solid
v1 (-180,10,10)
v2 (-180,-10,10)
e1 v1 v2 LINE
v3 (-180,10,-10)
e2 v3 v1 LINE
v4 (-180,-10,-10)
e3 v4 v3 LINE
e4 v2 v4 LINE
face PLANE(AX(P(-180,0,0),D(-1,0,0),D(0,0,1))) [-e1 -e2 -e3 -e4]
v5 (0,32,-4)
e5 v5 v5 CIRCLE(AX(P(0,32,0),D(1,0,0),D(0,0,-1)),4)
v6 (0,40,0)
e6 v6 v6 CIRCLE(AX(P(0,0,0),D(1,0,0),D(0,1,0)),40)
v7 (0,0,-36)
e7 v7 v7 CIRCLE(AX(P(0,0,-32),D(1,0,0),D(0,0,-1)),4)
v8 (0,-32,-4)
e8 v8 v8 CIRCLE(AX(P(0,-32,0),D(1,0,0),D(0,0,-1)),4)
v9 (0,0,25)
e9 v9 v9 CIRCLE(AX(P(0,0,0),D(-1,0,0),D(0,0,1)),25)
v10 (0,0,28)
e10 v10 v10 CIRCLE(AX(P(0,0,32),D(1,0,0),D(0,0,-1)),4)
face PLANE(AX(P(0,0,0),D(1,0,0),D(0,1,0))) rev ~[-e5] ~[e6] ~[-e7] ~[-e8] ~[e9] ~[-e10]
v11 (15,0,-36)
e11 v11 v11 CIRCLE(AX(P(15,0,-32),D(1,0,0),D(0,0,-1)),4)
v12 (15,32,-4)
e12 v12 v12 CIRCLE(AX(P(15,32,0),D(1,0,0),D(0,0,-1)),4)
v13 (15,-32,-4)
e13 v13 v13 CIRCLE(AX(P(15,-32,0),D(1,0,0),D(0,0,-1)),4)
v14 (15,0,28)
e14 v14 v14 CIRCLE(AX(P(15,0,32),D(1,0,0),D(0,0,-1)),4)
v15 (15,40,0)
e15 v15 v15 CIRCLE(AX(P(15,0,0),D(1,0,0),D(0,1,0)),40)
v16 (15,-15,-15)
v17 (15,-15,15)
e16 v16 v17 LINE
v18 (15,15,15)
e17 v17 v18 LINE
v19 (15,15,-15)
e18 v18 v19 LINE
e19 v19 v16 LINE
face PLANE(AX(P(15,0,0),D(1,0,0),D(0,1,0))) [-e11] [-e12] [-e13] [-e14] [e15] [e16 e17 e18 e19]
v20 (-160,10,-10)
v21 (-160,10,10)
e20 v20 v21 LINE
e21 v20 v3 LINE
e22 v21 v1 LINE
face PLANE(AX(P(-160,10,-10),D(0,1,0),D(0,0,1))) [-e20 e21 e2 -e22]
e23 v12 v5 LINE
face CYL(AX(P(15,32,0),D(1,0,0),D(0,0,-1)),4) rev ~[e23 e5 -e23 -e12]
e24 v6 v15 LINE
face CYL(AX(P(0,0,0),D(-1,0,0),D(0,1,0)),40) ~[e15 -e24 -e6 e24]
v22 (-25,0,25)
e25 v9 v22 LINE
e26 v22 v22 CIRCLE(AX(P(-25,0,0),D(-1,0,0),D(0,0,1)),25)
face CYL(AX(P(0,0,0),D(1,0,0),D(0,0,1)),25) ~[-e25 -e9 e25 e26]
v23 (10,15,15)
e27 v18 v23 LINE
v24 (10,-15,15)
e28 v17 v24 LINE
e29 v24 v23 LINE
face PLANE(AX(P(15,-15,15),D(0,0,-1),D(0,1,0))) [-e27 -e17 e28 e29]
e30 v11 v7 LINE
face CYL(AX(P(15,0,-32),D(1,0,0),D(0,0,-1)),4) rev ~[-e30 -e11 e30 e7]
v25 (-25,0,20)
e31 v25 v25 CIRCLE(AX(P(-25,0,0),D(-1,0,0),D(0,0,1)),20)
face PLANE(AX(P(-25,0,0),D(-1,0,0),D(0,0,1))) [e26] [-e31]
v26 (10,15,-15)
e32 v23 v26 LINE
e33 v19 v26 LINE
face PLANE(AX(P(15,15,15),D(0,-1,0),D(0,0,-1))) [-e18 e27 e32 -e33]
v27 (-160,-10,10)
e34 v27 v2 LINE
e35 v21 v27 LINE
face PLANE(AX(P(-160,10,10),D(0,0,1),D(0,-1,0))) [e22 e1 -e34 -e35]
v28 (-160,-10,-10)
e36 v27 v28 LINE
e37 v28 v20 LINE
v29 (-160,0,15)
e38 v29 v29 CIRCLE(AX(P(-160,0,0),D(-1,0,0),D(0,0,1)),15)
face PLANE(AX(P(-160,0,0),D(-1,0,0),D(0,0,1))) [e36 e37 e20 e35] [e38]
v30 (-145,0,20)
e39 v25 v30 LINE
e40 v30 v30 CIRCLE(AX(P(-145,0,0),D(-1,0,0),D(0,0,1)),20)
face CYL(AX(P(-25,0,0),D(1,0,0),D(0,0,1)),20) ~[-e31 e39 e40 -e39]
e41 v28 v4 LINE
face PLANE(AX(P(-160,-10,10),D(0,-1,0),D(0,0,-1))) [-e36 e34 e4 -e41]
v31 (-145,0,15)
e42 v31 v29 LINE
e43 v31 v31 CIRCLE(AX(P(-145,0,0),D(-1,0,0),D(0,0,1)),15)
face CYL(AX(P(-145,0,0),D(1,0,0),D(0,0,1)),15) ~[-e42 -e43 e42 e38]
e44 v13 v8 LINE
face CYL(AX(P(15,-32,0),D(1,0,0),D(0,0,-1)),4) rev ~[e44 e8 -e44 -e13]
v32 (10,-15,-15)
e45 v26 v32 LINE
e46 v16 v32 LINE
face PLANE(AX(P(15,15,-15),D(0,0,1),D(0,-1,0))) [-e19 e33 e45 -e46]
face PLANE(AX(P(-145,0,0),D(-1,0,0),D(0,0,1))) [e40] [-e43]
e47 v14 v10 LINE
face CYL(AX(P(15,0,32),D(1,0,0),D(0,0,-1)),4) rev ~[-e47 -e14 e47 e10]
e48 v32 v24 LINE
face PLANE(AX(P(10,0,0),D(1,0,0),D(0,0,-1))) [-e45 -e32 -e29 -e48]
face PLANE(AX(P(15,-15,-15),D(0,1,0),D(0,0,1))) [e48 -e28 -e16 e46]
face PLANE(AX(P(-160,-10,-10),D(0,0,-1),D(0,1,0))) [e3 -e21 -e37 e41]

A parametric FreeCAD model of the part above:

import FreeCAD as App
import Part
import Sketcher
Q = App.Units.Quantity


def add_polygon(sketch, points):
    """Adds a closed chain of lines whose ends are joined by coincident constraints."""
    first, n = sketch.GeometryCount, len(points)
    for a, b in zip(points, points[1:] + points[:1]):
        sketch.addGeometry(Part.LineSegment(App.Vector(*a, 0), App.Vector(*b, 0)), False)
    for i in range(n):
        sketch.addConstraint(Sketcher.Constraint("Coincident", first + i, 2, first + (i + 1) % n, 1))

doc = App.newDocument("Part")
body = doc.addObject("PartDesign::Body", "Body")

sketch1 = body.newObject("Sketcher::SketchObject", "Sketch")
sketch1.AttachmentSupport = (doc.getObject("YZ_Plane"), [""])
sketch1.MapMode = "FlatFace"
sketch1.addGeometry(Part.Circle(App.Vector(0, 0, 0), App.Vector(0, 0, 1), 40), False)
sketch1.addConstraint(Sketcher.Constraint("Coincident", 0, 3, -1, 1))
sketch1.addConstraint(Sketcher.Constraint("Diameter", 0, Q("80 mm")))
pad1 = body.newObject("PartDesign::Pad", "Pad")
pad1.Profile = sketch1
pad1.Length = 15

sketch2 = body.newObject("Sketcher::SketchObject", "Sketch001")
sketch2.AttachmentSupport = (doc.getObject("YZ_Plane"), [""])
sketch2.MapMode = "FlatFace"
sketch2.addGeometry(Part.Circle(App.Vector(0, 0, 0), App.Vector(0, 0, 1), 25), False)
sketch2.addConstraint(Sketcher.Constraint("Coincident", 0, 3, -1, 1))
sketch2.addConstraint(Sketcher.Constraint("Diameter", 0, Q("50 mm")))
pad2 = body.newObject("PartDesign::Pad", "Pad001")
pad2.Profile = sketch2
pad2.Length = 25
pad2.Reversed = True

sketch3 = body.newObject("Sketcher::SketchObject", "Sketch002")
sketch3.AttachmentSupport = (doc.getObject("YZ_Plane"), [""])
sketch3.MapMode = "FlatFace"
sketch3.AttachmentOffset = App.Placement(App.Vector(0, 0, -25), App.Rotation())
sketch3.addGeometry(Part.Circle(App.Vector(0, 0, 0), App.Vector(0, 0, 1), 20), False)
sketch3.addConstraint(Sketcher.Constraint("Coincident", 0, 3, -1, 1))
sketch3.addConstraint(Sketcher.Constraint("Diameter", 0, Q("40 mm")))
pad3 = body.newObject("PartDesign::Pad", "Pad002")
pad3.Profile = sketch3
pad3.Length = 120
pad3.Reversed = True

sketch4 = body.newObject("Sketcher::SketchObject", "Sketch003")
sketch4.AttachmentSupport = (doc.getObject("YZ_Plane"), [""])
sketch4.MapMode = "FlatFace"
sketch4.AttachmentOffset = App.Placement(App.Vector(0, 0, -145), App.Rotation())
sketch4.addGeometry(Part.Circle(App.Vector(0, 0, 0), App.Vector(0, 0, 1), 15), False)
sketch4.addConstraint(Sketcher.Constraint("Coincident", 0, 3, -1, 1))
sketch4.addConstraint(Sketcher.Constraint("Diameter", 0, Q("30 mm")))
pad4 = body.newObject("PartDesign::Pad", "Pad003")
pad4.Profile = sketch4
pad4.Length = 15
pad4.Reversed = True

sketch5 = body.newObject("Sketcher::SketchObject", "Sketch004")
sketch5.AttachmentSupport = (doc.getObject("YZ_Plane"), [""])
sketch5.MapMode = "FlatFace"
sketch5.AttachmentOffset = App.Placement(App.Vector(0, 0, -160), App.Rotation())
add_polygon(sketch5, [(10, 10), (10, -10), (-10, -10), (-10, 10)])
sketch5.addConstraint(Sketcher.Constraint("Vertical", 0))
sketch5.addConstraint(Sketcher.Constraint("Horizontal", 1))
sketch5.addConstraint(Sketcher.Constraint("Vertical", 2))
sketch5.addConstraint(Sketcher.Constraint("Horizontal", 3))
sketch5.addConstraint(Sketcher.Constraint("Symmetric", 0, 2, 2, 2, -1, 1))
sketch5.addConstraint(Sketcher.Constraint("Equal", 3, 0))
sketch5.addConstraint(Sketcher.Constraint("DistanceX", 1, 2, 1, 1, Q("20 mm")))
pad5 = body.newObject("PartDesign::Pad", "Pad004")
pad5.Profile = sketch5
pad5.Length = 20
pad5.Reversed = True

sketch6 = body.newObject("Sketcher::SketchObject", "Sketch005")
sketch6.AttachmentSupport = (doc.getObject("YZ_Plane"), [""])
sketch6.MapMode = "FlatFace"
sketch6.AttachmentOffset = App.Placement(App.Vector(0, 0, 15), App.Rotation())
add_polygon(sketch6, [(15, -15), (15, 15), (-15, 15), (-15, -15)])
sketch6.addConstraint(Sketcher.Constraint("Vertical", 0))
sketch6.addConstraint(Sketcher.Constraint("Horizontal", 1))
sketch6.addConstraint(Sketcher.Constraint("Vertical", 2))
sketch6.addConstraint(Sketcher.Constraint("Horizontal", 3))
sketch6.addConstraint(Sketcher.Constraint("Symmetric", 0, 2, 2, 2, -1, 1))
sketch6.addConstraint(Sketcher.Constraint("Equal", 3, 0))
sketch6.addConstraint(Sketcher.Constraint("DistanceX", 1, 2, 1, 1, Q("30 mm")))
pocket1 = body.newObject("PartDesign::Pocket", "Pocket")
pocket1.Profile = sketch6
pocket1.Length = 5

sketch7 = body.newObject("Sketcher::SketchObject", "Sketch006")
sketch7.AttachmentSupport = (doc.getObject("YZ_Plane"), [""])
sketch7.MapMode = "FlatFace"
sketch7.AttachmentOffset = App.Placement(App.Vector(0, 0, 15), App.Rotation())
sketch7.addGeometry(Part.Circle(App.Vector(32, 0, 0), App.Vector(0, 0, 1), 4), False)
sketch7.addGeometry(Part.Circle(App.Vector(0, -32, 0), App.Vector(0, 0, 1), 4), False)
sketch7.addGeometry(Part.Circle(App.Vector(0, 32, 0), App.Vector(0, 0, 1), 4), False)
sketch7.addGeometry(Part.Circle(App.Vector(-32, 0, 0), App.Vector(0, 0, 1), 4), False)
sketch7.addConstraint(Sketcher.Constraint("Equal", 0, 1))
sketch7.addConstraint(Sketcher.Constraint("Equal", 1, 2))
sketch7.addConstraint(Sketcher.Constraint("Equal", 2, 3))
sketch7.addConstraint(Sketcher.Constraint("Symmetric", 1, 3, 2, 3, -1, 1))
sketch7.addConstraint(Sketcher.Constraint("Symmetric", 0, 3, 3, 3, -1, 1))
sketch7.addConstraint(Sketcher.Constraint("PointOnObject", 0, 3, -1))
sketch7.addConstraint(Sketcher.Constraint("PointOnObject", 1, 3, -2))
sketch7.addConstraint(Sketcher.Constraint("Diameter", 0, Q("8 mm")))
sketch7.addConstraint(Sketcher.Constraint("DistanceY", 1, 3, 2, 3, Q("64 mm")))
sketch7.addConstraint(Sketcher.Constraint("DistanceX", 3, 3, 0, 3, Q("64 mm")))
pocket2 = body.newObject("PartDesign::Pocket", "Pocket001")
pocket2.Profile = sketch7
pocket2.Type = "ThroughAll"

doc.recompute()
